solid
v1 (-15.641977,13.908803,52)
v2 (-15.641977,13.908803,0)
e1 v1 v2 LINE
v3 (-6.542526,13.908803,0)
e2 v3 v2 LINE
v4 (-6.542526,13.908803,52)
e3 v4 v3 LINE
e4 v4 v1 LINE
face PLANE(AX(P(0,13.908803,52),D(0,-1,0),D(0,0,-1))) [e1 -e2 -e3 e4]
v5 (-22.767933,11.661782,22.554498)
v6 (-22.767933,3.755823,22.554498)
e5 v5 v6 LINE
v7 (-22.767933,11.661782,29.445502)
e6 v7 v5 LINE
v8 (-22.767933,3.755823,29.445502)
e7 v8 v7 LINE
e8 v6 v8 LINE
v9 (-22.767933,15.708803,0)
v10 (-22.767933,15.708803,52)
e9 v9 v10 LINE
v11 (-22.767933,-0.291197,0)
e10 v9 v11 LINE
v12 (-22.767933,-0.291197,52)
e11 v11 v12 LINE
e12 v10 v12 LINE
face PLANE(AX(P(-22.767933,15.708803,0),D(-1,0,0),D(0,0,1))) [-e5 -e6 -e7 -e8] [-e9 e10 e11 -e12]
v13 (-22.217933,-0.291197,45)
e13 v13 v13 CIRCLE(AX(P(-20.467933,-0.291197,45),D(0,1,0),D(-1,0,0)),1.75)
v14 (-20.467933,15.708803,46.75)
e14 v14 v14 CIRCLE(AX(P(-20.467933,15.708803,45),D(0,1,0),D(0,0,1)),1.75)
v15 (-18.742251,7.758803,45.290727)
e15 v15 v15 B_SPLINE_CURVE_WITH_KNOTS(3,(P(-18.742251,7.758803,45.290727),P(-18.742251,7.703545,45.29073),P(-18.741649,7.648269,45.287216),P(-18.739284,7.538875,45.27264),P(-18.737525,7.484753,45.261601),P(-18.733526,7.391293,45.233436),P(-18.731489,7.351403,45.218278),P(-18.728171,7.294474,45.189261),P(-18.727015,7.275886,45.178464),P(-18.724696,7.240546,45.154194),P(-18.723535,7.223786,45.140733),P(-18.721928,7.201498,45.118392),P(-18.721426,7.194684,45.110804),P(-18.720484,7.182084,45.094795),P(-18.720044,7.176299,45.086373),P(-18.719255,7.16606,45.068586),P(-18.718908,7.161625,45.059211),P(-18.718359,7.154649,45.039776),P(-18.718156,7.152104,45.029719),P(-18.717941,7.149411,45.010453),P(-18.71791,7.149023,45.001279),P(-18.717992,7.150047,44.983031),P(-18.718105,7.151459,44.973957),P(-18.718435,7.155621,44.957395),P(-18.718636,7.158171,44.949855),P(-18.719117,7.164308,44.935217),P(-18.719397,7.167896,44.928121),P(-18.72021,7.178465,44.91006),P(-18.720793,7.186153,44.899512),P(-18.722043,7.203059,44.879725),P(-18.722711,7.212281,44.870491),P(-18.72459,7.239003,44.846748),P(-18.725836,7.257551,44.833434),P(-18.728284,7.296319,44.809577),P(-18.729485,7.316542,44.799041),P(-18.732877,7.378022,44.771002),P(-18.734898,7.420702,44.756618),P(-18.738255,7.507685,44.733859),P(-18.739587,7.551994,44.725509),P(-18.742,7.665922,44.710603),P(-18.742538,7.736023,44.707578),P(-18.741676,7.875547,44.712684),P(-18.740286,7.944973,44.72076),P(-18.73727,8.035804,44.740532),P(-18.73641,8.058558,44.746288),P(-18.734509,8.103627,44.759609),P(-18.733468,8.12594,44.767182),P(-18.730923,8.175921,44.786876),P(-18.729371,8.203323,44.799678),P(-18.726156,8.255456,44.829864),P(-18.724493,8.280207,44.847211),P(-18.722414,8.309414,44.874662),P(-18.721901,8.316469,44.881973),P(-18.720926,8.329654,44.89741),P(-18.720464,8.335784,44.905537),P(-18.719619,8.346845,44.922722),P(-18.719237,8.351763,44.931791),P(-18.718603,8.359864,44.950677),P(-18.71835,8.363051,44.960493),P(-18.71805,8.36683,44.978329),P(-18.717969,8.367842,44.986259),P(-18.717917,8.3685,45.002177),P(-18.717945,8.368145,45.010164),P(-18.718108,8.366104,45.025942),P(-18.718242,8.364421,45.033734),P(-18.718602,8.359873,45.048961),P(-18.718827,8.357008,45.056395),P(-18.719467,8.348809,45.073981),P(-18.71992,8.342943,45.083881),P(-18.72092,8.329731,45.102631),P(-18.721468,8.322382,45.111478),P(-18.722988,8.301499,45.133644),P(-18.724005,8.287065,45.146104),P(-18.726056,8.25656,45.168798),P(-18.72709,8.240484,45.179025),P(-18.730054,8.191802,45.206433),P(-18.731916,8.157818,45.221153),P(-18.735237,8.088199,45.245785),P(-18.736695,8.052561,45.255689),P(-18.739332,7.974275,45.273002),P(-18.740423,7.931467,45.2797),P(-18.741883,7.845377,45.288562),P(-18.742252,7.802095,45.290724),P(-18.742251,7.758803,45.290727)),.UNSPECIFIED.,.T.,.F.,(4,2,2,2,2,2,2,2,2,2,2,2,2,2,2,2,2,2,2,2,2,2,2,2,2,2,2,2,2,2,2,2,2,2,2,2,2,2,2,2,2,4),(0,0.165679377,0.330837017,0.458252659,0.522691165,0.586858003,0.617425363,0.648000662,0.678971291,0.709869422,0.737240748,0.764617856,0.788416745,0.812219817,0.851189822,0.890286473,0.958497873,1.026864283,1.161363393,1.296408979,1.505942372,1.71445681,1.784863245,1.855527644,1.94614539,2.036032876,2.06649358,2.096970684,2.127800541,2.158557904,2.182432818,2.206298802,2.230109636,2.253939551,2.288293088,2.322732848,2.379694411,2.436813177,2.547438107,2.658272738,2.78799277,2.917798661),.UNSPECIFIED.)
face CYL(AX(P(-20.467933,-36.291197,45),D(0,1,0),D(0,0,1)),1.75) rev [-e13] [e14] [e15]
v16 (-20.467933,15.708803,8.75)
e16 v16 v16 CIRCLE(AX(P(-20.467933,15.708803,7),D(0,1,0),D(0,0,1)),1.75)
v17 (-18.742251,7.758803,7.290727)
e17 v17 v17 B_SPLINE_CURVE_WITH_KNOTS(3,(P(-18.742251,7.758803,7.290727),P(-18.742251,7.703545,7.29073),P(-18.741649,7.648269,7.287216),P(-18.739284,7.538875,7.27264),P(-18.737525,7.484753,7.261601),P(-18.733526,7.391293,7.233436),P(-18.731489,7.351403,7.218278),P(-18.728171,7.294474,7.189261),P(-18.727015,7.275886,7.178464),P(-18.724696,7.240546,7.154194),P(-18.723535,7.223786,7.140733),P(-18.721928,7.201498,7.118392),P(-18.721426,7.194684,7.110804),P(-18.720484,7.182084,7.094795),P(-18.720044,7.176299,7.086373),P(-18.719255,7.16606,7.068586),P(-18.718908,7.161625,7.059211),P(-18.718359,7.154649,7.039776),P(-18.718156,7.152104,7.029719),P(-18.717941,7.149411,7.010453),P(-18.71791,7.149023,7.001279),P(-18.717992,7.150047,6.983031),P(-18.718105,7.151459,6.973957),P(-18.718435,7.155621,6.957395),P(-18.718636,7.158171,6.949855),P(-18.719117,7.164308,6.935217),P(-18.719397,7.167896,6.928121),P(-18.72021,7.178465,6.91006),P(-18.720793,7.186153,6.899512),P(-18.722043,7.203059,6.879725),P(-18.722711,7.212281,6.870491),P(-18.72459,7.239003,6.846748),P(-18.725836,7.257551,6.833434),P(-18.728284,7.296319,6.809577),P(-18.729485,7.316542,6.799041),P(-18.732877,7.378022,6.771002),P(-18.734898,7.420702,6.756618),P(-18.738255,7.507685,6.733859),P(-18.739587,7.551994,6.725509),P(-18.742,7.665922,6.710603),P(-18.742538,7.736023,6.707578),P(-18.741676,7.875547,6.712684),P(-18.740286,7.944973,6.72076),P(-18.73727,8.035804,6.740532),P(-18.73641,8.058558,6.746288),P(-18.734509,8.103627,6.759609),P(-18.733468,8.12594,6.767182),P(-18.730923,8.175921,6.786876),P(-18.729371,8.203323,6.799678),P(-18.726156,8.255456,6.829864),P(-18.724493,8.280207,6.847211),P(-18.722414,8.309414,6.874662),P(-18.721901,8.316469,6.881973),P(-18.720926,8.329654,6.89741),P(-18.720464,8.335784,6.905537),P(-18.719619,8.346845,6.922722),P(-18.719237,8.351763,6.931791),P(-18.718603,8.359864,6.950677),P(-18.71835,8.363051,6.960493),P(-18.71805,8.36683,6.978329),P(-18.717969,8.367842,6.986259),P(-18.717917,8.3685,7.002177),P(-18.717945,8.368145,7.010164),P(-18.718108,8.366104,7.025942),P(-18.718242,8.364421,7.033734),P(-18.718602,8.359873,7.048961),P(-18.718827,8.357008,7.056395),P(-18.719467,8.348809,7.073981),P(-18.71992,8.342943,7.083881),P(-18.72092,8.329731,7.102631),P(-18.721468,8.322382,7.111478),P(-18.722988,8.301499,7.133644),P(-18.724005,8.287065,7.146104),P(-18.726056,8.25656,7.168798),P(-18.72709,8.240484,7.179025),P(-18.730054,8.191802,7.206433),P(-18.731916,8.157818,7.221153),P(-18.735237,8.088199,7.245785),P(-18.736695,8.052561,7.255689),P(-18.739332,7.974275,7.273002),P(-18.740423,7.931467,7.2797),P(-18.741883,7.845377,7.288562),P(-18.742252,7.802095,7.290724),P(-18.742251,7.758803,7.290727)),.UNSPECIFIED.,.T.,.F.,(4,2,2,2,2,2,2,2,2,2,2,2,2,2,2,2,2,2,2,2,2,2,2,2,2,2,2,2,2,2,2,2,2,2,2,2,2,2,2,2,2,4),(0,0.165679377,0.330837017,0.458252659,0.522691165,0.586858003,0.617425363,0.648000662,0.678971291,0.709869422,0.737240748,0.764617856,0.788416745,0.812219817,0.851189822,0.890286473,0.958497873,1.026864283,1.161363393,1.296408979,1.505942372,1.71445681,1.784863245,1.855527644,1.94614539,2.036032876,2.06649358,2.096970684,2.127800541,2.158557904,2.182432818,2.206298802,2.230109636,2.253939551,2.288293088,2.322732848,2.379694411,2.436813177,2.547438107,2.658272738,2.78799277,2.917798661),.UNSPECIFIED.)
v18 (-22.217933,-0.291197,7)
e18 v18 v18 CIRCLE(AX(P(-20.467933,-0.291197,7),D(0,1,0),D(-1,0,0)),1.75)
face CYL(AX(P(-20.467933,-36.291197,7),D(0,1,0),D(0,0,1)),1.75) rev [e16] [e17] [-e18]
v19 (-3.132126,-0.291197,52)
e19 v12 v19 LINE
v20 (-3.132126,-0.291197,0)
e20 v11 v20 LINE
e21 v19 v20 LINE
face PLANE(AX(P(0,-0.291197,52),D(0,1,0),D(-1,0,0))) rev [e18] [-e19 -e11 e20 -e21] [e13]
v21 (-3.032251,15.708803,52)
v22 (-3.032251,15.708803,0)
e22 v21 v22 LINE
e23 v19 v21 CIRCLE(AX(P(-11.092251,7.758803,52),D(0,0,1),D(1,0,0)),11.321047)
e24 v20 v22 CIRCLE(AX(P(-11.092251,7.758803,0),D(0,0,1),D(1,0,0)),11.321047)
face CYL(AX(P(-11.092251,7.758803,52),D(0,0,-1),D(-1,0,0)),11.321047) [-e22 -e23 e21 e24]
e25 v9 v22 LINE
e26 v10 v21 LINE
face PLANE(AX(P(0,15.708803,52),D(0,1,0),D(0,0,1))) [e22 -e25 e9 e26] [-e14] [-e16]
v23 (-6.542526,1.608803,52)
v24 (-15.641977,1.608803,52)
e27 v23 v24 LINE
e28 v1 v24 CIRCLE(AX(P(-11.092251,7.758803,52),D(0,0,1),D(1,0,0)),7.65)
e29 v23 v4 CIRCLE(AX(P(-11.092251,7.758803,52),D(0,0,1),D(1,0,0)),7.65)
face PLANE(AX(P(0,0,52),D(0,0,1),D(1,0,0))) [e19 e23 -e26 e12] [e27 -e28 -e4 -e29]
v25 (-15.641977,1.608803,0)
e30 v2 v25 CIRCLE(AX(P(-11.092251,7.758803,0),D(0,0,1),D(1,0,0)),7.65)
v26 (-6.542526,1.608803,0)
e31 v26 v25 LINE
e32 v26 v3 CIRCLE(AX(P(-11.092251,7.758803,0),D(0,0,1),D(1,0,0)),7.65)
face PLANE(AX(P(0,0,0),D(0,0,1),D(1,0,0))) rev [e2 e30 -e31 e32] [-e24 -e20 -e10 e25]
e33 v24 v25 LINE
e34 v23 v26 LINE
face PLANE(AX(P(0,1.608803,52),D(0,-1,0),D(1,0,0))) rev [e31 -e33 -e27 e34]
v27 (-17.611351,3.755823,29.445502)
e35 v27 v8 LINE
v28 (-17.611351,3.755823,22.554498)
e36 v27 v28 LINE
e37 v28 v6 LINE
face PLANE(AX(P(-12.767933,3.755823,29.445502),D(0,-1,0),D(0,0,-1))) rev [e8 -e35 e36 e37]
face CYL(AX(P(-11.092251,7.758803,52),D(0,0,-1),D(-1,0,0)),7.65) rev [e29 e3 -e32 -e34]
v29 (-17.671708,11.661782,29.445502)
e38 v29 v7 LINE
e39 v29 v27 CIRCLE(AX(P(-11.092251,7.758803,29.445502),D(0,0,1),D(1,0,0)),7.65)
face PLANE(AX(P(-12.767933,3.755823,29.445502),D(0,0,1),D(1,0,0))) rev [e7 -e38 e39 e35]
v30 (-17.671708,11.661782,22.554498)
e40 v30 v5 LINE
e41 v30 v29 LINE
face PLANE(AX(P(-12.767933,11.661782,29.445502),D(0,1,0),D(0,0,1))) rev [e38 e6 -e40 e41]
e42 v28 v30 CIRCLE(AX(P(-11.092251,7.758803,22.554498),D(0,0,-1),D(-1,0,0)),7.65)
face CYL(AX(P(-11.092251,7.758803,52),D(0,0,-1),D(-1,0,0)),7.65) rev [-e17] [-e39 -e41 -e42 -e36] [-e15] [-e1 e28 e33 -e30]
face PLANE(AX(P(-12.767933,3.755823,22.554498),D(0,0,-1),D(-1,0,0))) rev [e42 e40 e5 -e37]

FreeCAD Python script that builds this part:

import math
import FreeCAD as App
import Part
import Sketcher
from FreeCAD import Vector


def add_polygon(sketch, points):
    """Adds a closed chain of lines whose ends are joined by coincident constraints."""
    first, n = sketch.GeometryCount, len(points)
    for a, b in zip(points, points[1:] + points[:1]):
        sketch.addGeometry(Part.LineSegment(App.Vector(*a, 0), App.Vector(*b, 0)), False)
    for i in range(n):
        sketch.addConstraint(Sketcher.Constraint("Coincident", first + i, 2, first + (i + 1) % n, 1))

doc = App.newDocument("Part")
params = doc.addObject("Spreadsheet::Sheet", "Params")
for row, (alias, value) in enumerate([
    ("sketch1_height", "16 mm"),
    ("sketch1_radius", "7.65 mm"),
    ("sketch1_width", "19.12 mm"),
    ("pad1_length", "52 mm"),
    ("sketch2_height", "16 mm"),
    ("pad2_length", "52 mm"),
    ("sketch3_diameter", "3.5 mm"),
    ("pocket1_length", "52 mm"),
    ("pocket2_length", "10 mm"),
], start=1):
    params.set(f"A{row}", alias)
    params.set(f"B{row}", "=" + value)
    params.setAlias(f"B{row}", alias)

body = doc.addObject("PartDesign::Body", "Body")

sketch1 = body.newObject("Sketcher::SketchObject", "Sketch")
sketch1.AttachmentSupport = (doc.getObject("XY_Plane"), [""])
sketch1.MapMode = "FlatFace"
sketch1.addGeometry([
    Part.LineSegment(Vector(-3.03, 15.71, 0), Vector(-22.15, 15.71, 0)),
    Part.LineSegment(Vector(-22.15, 15.71, 0), Vector(-22.15, -0.29, 0)),
    Part.LineSegment(Vector(-22.15, -0.29, 0), Vector(-3.13, -0.29, 0)),
    Part.ArcOfCircle(Part.Circle(Vector(-11.09, 7.76, 0), Vector(0, 0, 1), 11.32), math.radians(-45.32), math.radians(-44.61)),
    Part.ArcOfCircle(Part.Circle(Vector(-11.09, 7.76, 0), Vector(0, 0, 1), 11.32), math.radians(-45), math.radians(45)),
    Part.ArcOfCircle(Part.Circle(Vector(-11.09, 7.76, 0), Vector(0, 0, 1), 7.65), math.radians(126), math.radians(234)),
    Part.LineSegment(Vector(-15.64, 13.91, 0), Vector(-6.54, 13.91, 0)),
    Part.ArcOfCircle(Part.Circle(Vector(-11.09, 7.76, 0), Vector(0, 0, 1), 7.65), math.radians(-54), math.radians(54)),
    Part.LineSegment(Vector(-6.54, 1.61, 0), Vector(-15.64, 1.61, 0)),
], False)
sketch1.addConstraint([
    Sketcher.Constraint("Coincident", 0, 2, 1, 1),
    Sketcher.Constraint("Coincident", 1, 2, 2, 1),
    Sketcher.Constraint("Coincident", 2, 2, 3, 1),
    Sketcher.Constraint("Tangent", 3, 2, 4, 1),
    Sketcher.Constraint("Coincident", 4, 2, 0, 1),
    Sketcher.Constraint("Coincident", 5, 1, 6, 1),
    Sketcher.Constraint("Coincident", 6, 2, 7, 2),
    Sketcher.Constraint("Coincident", 7, 1, 8, 1),
    Sketcher.Constraint("Coincident", 8, 2, 5, 2),
    Sketcher.Constraint("Horizontal", 0),
    Sketcher.Constraint("Vertical", 1),
    Sketcher.Constraint("Horizontal", 2),
    Sketcher.Constraint("Horizontal", 6),
    Sketcher.Constraint("Horizontal", 8),
    Sketcher.Constraint("Coincident", 5, 3, 4, 3),
    Sketcher.Constraint("Coincident", 7, 3, 4, 3),
    Sketcher.Constraint("Equal", 5, 7),
    Sketcher.Constraint("Vertical", 3, 2, 4, 2),
    Sketcher.Constraint("Vertical", 6, 2, 7, 1),
    Sketcher.Constraint("DistanceY", 1, 2, 1, 1, 16.0),
    Sketcher.Constraint("Radius", 5, 7.65),
    Sketcher.Constraint("DistanceX", 0, 2, 0, 1, 19.12),
    Sketcher.Constraint("DistanceY", 2, 2, 3, 2, 0.1),
    Sketcher.Constraint("DistanceY", 5, 1, 0, 2, 1.8),
    Sketcher.Constraint("Radius", 3, 11.321059),
    Sketcher.Constraint("DistanceX", 0, 2, 5, 3, 11.06),
    Sketcher.Constraint("DistanceX", 3, 3, -1, 1, 11.09226),
    Sketcher.Constraint("DistanceY", -1, 1, 3, 3, 7.758811),
])
sketch1.setExpression("Constraints[19]", "Params.sketch1_height")
sketch1.setExpression("Constraints[20]", "Params.sketch1_radius")
sketch1.setExpression("Constraints[21]", "Params.sketch1_width")
pad1 = body.newObject("PartDesign::Pad", "Pad")
pad1.Profile = sketch1
pad1.setExpression("Length", "Params.pad1_length")

sketch2 = body.newObject("Sketcher::SketchObject", "Sketch001")
sketch2.AttachmentSupport = (doc.getObject("XY_Plane"), [""])
sketch2.MapMode = "FlatFace"
sketch2.AttachmentOffset = App.Placement(Vector(0, 0, 52), App.Rotation())
add_polygon(sketch2, [(-22.8, 15.7), (-22.8, -0.3), (-22.2, -0.3), (-22.2, 15.7)])
sketch2.addConstraint([
    Sketcher.Constraint("Vertical", 0),
    Sketcher.Constraint("Horizontal", 1),
    Sketcher.Constraint("Vertical", 2),
    Sketcher.Constraint("Horizontal", 3),
    Sketcher.Constraint("DistanceY", 0, 2, 0, 1, 16.0),
    Sketcher.Constraint("DistanceX", 1, 1, 1, 2, 0.615682),
    Sketcher.Constraint("DistanceX", 1, 2, -1, 1, 22.152251),
    Sketcher.Constraint("DistanceY", 0, 2, -1, 1, 0.291197),
])
sketch2.setExpression("Constraints[8]", "Params.sketch2_height")
pad2 = body.newObject("PartDesign::Pad", "Pad001")
pad2.Profile = sketch2
pad2.setExpression("Length", "Params.pad2_length")
pad2.Reversed = True

sketch3 = body.newObject("Sketcher::SketchObject", "Sketch002")
sketch3.AttachmentSupport = (doc.getObject("XZ_Plane"), [""])
sketch3.MapMode = "FlatFace"
sketch3.AttachmentOffset = App.Placement(Vector(0, 0, -15.708803), App.Rotation())
sketch3.addGeometry([
    Part.Circle(Vector(-20.5, 7, 0), Vector(0, 0, 1), 1.8),
    Part.Circle(Vector(-20.5, 45, 0), Vector(0, 0, 1), 1.8),
], False)
sketch3.addConstraint([
    Sketcher.Constraint("Equal", 0, 1),
    Sketcher.Constraint("Vertical", 0, 3, 1, 3),
    Sketcher.Constraint("Diameter", 0, 3.5),
    Sketcher.Constraint("DistanceY", -1, 1, 0, 3, 7.0),
    Sketcher.Constraint("DistanceY", -1, 1, 1, 3, 45.0),
    Sketcher.Constraint("DistanceX", 0, 3, -1, 1, 20.467933),
])
sketch3.setExpression("Constraints[2]", "Params.sketch3_diameter")
pocket1 = body.newObject("PartDesign::Pocket", "Pocket")
pocket1.Profile = sketch3
pocket1.setExpression("Length", "Params.pocket1_length")
pocket1.Reversed = True

sketch4 = body.newObject("Sketcher::SketchObject", "Sketch003")
sketch4.AttachmentSupport = (doc.getObject("YZ_Plane"), [""])
sketch4.MapMode = "FlatFace"
sketch4.AttachmentOffset = App.Placement(Vector(0, 0, -22.767933), App.Rotation())
add_polygon(sketch4, [(12, 23), (4, 23), (4, 29), (12, 29)])
sketch4.addConstraint([
    Sketcher.Constraint("Horizontal", 0),
    Sketcher.Constraint("Vertical", 1),
    Sketcher.Constraint("Horizontal", 2),
    Sketcher.Constraint("Vertical", 3),
    Sketcher.Constraint("DistanceX", 0, 2, 0, 1, 7.905959),
    Sketcher.Constraint("DistanceY", 1, 1, 1, 2, 6.891005),
    Sketcher.Constraint("DistanceX", -1, 1, 2, 2, 11.661782),
    Sketcher.Constraint("DistanceY", -1, 1, 0, 2, 22.554498),
])
pocket2 = body.newObject("PartDesign::Pocket", "Pocket001")
pocket2.Profile = sketch4
pocket2.setExpression("Length", "Params.pocket2_length")
pocket2.Reversed = True

doc.recompute()
